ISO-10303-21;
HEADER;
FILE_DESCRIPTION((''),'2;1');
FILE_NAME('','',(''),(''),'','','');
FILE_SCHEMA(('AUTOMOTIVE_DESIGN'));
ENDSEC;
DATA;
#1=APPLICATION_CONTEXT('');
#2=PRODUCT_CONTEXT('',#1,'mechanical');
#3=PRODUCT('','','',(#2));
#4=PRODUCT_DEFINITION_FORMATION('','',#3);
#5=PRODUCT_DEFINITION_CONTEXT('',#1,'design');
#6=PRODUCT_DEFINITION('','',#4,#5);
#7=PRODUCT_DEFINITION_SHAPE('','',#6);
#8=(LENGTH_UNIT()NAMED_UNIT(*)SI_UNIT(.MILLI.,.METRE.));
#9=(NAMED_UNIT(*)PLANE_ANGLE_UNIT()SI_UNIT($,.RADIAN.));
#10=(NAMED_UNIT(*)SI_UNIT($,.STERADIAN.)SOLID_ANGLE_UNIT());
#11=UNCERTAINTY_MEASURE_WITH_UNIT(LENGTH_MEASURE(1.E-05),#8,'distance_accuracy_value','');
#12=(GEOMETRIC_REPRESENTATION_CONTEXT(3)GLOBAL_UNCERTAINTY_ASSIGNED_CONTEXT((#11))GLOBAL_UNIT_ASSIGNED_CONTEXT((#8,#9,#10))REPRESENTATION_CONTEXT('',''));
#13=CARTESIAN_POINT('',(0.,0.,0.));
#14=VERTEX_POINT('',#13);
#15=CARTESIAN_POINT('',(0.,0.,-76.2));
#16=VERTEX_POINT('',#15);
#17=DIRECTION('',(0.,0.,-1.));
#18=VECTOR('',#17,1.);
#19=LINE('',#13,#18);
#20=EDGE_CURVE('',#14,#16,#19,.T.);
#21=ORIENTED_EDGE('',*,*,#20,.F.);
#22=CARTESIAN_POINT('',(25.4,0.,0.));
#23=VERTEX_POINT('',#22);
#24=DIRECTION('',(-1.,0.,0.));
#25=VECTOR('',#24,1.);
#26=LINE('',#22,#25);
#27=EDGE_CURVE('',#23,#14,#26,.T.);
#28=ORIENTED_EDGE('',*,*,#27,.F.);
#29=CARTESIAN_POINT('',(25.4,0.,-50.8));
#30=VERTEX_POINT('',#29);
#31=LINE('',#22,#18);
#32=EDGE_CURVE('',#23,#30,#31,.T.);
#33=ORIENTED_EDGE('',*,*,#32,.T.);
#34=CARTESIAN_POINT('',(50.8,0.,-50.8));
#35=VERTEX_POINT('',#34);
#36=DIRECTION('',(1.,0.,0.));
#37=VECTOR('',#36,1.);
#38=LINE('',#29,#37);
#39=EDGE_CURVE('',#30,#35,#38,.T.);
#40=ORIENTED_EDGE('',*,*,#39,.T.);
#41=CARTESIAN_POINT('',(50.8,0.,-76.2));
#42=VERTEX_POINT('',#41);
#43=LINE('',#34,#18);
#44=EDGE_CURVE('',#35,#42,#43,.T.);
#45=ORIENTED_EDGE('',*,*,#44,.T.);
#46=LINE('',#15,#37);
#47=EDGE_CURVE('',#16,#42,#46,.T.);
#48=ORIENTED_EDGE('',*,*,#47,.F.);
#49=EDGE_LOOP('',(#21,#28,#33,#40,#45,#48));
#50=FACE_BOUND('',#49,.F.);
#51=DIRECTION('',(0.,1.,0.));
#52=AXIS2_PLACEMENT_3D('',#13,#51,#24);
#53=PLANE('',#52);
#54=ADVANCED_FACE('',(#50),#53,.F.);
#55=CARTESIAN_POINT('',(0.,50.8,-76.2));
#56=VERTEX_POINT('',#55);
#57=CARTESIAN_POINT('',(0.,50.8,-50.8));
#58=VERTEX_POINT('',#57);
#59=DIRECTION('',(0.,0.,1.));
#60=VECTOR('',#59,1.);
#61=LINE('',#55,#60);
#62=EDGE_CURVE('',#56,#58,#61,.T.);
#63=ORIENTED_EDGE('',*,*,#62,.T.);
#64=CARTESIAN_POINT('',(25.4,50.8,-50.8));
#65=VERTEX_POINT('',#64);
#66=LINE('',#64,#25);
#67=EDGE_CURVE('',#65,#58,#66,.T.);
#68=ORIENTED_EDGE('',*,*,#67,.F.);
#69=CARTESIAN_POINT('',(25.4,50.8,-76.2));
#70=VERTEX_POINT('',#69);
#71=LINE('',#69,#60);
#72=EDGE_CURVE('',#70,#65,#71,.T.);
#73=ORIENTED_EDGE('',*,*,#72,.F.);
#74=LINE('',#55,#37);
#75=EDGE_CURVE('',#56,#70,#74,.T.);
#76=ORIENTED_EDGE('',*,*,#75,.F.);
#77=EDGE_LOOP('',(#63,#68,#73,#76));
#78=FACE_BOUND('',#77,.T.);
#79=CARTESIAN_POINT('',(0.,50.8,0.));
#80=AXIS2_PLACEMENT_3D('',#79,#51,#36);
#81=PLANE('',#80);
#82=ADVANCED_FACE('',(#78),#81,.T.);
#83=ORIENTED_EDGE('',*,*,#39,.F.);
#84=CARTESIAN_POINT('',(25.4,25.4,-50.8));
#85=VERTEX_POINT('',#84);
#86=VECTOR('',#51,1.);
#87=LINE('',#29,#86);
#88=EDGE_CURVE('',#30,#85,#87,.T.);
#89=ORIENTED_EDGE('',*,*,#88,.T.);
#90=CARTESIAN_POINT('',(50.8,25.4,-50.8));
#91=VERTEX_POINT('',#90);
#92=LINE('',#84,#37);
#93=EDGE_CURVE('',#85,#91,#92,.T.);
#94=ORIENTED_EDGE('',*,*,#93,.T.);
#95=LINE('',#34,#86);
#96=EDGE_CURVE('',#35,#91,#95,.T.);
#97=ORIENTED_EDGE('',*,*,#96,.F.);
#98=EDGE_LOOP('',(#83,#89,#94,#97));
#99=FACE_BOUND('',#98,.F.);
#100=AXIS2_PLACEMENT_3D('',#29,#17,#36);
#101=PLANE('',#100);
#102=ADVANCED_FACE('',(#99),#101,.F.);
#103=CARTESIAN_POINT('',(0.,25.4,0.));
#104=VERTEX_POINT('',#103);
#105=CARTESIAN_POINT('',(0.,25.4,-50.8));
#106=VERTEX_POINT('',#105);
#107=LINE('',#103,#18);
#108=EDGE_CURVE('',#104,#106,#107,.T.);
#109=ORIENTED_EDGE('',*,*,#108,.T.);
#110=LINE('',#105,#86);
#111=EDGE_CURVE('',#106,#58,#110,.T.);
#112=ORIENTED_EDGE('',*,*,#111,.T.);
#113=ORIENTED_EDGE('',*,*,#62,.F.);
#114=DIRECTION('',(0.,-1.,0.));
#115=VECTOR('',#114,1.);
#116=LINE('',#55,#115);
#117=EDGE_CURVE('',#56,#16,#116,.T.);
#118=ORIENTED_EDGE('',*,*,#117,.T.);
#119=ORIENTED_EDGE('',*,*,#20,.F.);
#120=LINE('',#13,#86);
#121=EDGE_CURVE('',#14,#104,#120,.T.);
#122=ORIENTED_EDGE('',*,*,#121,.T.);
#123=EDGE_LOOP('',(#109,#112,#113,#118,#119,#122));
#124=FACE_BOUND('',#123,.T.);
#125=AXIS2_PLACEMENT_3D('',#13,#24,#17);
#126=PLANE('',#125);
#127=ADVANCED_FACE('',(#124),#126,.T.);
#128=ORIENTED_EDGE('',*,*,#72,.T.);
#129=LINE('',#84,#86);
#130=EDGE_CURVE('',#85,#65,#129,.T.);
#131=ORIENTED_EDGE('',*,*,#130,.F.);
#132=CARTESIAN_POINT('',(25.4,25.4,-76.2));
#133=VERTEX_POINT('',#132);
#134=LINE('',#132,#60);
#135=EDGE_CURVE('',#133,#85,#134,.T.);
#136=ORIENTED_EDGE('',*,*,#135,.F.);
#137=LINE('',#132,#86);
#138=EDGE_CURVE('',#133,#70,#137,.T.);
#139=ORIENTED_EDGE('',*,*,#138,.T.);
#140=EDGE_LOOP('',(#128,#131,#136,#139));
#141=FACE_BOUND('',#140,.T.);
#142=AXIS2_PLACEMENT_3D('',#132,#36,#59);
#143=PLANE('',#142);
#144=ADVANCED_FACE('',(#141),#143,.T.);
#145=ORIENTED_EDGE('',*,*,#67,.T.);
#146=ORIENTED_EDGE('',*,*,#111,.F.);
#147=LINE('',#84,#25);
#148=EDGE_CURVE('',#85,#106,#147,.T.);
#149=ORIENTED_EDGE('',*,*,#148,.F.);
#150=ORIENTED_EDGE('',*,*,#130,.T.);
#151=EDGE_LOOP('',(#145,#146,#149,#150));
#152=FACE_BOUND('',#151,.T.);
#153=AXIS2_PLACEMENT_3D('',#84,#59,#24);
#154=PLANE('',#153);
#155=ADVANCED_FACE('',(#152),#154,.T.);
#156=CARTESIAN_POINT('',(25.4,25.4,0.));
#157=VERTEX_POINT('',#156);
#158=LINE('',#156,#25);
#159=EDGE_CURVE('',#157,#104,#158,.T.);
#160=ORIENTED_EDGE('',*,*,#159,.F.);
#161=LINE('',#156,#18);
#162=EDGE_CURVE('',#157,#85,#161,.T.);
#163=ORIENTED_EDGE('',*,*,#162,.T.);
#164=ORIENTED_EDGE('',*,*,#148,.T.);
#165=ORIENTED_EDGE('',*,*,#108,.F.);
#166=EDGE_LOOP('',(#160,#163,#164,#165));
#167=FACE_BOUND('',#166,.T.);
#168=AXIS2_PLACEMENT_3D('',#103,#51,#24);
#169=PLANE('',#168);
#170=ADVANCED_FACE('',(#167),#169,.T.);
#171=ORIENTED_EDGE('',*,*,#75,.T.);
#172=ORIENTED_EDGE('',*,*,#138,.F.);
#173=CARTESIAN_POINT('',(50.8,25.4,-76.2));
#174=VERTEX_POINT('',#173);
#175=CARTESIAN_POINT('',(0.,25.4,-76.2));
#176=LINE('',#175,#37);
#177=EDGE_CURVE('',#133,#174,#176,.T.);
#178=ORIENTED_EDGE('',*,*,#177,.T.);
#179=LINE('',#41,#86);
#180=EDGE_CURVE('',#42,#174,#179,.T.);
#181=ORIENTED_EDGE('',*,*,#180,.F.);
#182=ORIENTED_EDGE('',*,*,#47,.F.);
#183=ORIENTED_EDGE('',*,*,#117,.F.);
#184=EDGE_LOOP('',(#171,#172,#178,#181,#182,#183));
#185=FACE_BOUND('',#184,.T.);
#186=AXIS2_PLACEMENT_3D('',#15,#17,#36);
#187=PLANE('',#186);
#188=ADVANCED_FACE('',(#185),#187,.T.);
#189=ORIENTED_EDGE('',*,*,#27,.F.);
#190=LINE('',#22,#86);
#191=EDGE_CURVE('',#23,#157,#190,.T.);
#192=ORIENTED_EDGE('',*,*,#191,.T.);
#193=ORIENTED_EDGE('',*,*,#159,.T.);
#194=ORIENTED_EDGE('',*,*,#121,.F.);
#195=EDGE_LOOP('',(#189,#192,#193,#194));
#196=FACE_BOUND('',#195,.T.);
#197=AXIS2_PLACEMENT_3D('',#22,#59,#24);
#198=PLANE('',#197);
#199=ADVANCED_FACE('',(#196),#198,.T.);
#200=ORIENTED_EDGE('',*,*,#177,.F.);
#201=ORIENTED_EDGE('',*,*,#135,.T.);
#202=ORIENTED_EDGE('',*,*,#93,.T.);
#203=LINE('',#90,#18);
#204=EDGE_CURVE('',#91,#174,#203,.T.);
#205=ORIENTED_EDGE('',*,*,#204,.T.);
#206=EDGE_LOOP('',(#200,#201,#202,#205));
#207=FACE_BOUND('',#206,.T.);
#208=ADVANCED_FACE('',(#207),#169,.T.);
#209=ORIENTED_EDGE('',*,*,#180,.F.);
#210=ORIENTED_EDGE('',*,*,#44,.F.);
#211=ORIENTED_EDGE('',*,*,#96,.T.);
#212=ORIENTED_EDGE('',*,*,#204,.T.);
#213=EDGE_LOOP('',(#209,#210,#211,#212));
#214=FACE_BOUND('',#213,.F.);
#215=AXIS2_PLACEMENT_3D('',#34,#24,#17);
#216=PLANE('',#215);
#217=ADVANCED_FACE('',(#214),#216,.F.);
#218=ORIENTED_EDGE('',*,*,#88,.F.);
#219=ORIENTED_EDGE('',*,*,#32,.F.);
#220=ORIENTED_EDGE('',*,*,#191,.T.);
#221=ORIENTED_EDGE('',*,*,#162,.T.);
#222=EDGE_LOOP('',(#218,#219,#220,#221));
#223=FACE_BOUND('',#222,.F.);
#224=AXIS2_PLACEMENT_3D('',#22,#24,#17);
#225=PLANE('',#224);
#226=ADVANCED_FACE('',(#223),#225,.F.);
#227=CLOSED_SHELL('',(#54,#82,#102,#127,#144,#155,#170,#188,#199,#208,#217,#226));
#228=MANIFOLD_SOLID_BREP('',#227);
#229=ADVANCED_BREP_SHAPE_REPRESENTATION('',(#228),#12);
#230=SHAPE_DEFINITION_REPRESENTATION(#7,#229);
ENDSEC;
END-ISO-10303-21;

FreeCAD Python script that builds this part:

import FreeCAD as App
import Part
import Sketcher
Q = App.Units.Quantity


def add_polygon(sketch, points):
    """Adds a closed chain of lines whose ends are joined by coincident constraints."""
    first, n = sketch.GeometryCount, len(points)
    for a, b in zip(points, points[1:] + points[:1]):
        sketch.addGeometry(Part.LineSegment(App.Vector(*a, 0), App.Vector(*b, 0)), False)
    for i in range(n):
        sketch.addConstraint(Sketcher.Constraint("Coincident", first + i, 2, first + (i + 1) % n, 1))

doc = App.newDocument("Part")
body = doc.addObject("PartDesign::Body", "Body")

sketch1 = body.newObject("Sketcher::SketchObject", "Sketch")
sketch1.AttachmentSupport = (doc.getObject("XZ_Plane"), [""])
sketch1.MapMode = "FlatFace"
add_polygon(sketch1, [(0, -76), (0, 0), (25, 0), (25, -51), (51, -51), (51, -76)])
sketch1.addConstraint([
    Sketcher.Constraint("Vertical", 0),
    Sketcher.Constraint("Horizontal", 1),
    Sketcher.Constraint("Vertical", 2),
    Sketcher.Constraint("Horizontal", 3),
    Sketcher.Constraint("Vertical", 4),
    Sketcher.Constraint("Horizontal", 5),
    Sketcher.Constraint("Coincident", 0, 2, -1, 1),
    Sketcher.Constraint("Equal", 1, 3),
    Sketcher.Constraint("Equal", 5, 2),
    Sketcher.Constraint("Equal", 3, 4),
    Sketcher.Constraint("DistanceX", 1, 1, 1, 2, Q("1 in")),
])
pad1 = body.newObject("PartDesign::Pad", "Pad")
pad1.Profile = sketch1
pad1.Length = Q("1 in")
pad1.Reversed = True

sketch2 = body.newObject("Sketcher::SketchObject", "Sketch001")
sketch2.AttachmentSupport = (doc.getObject("XZ_Plane"), [""])
sketch2.MapMode = "FlatFace"
sketch2.AttachmentOffset = App.Placement(App.Vector(0, 0, -1 * 25.4), App.Rotation())
add_polygon(sketch2, [(25, -76), (0, -76), (0, -51), (25, -51)])
sketch2.addConstraint([
    Sketcher.Constraint("Horizontal", 0),
    Sketcher.Constraint("Vertical", 1),
    Sketcher.Constraint("Horizontal", 2),
    Sketcher.Constraint("Vertical", 3),
    Sketcher.Constraint("PointOnObject", 0, 2, -2),
    Sketcher.Constraint("Equal", 2, 1),
    Sketcher.Constraint("DistanceX", 0, 2, 0, 1, Q("1 in")),
    Sketcher.Constraint("DistanceY", 0, 2, -1, 1, Q("3 in")),
])
pad2 = body.newObject("PartDesign::Pad", "Pad001")
pad2.Profile = sketch2
pad2.Length = Q("1 in")
pad2.Reversed = True

doc.recompute()
